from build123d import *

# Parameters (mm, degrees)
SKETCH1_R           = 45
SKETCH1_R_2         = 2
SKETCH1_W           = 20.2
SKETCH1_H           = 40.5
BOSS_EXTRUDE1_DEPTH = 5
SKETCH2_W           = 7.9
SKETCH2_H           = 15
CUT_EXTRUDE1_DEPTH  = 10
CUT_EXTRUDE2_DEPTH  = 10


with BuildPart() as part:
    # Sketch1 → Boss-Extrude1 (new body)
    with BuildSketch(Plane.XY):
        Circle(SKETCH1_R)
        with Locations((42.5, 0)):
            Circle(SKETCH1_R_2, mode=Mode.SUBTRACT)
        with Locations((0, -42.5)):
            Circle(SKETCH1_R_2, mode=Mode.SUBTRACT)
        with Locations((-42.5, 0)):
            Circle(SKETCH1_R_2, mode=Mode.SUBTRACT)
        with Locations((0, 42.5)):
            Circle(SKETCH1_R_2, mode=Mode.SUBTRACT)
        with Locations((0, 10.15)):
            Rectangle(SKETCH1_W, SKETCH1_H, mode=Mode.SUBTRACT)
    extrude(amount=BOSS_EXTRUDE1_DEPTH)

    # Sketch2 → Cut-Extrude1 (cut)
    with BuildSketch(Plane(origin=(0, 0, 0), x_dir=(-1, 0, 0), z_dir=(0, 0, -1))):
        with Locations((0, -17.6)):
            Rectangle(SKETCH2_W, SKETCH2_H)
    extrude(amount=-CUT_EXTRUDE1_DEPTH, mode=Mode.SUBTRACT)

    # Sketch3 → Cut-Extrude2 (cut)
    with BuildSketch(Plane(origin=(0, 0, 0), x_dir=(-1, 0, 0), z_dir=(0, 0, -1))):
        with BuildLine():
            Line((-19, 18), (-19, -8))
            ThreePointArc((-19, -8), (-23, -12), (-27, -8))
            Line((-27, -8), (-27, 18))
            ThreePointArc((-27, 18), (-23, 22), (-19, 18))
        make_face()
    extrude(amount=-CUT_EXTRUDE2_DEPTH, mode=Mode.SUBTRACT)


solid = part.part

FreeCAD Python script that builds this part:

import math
import FreeCAD as App
import Part
import Sketcher

V = App.Vector


def add_polygon(sketch, points):
    """Adds a closed chain of lines whose ends are joined by coincident constraints."""
    first, n = sketch.GeometryCount, len(points)
    for a, b in zip(points, points[1:] + points[:1]):
        sketch.addGeometry(Part.LineSegment(App.Vector(*a, 0), App.Vector(*b, 0)), False)
    for i in range(n):
        sketch.addConstraint(Sketcher.Constraint("Coincident", first + i, 2, first + (i + 1) % n, 1))

doc = App.newDocument("Part")
params = doc.addObject("Spreadsheet::Sheet", "Params")
for row, (alias, value) in enumerate([
    ("sketch1_diameter", "90 mm"),
    ("sketch1_diameter2", "4 mm"),
    ("sketch1_width", "20.2 mm"),
    ("sketch1_height", "40.5 mm"),
    ("pad1_length", "5 mm"),
    ("sketch2_height", "15 mm"),
    ("sketch2_width", "7.9 mm"),
    ("pocket1_length", "10 mm"),
    ("sketch3_radius", "4 mm"),
    ("sketch3_height", "26 mm"),
    ("pocket2_length", "10 mm"),
], start=1):
    params.set(f"A{row}", alias)
    params.set(f"B{row}", "=" + value)
    params.setAlias(f"B{row}", alias)

body = doc.addObject("PartDesign::Body", "Body")

# Sketch on XY plane
sketch1 = body.newObject("Sketcher::SketchObject", "Sketch")
sketch1.AttachmentSupport = (doc.getObject("XY_Plane"), [""])
sketch1.MapMode = "FlatFace"
sketch1.addGeometry(Part.Circle(V(0, 0, 0), V(0, 0, 1), 45), False)  # 0
sketch1.addGeometry(Part.Circle(V(0, -42.5, 0), V(0, 0, 1), 2), False)  # 1
sketch1.addGeometry(Part.Circle(V(-42.5, 0, 0), V(0, 0, 1), 2), False)  # 2
add_polygon(sketch1, [(10.1, -10.1), (-10.1, -10.1), (-10.1, 30.4), (10.1, 30.4)])  # lines 3-6
sketch1.addGeometry(Part.Circle(V(42.5, 0, 0), V(0, 0, 1), 2), False)  # 7
sketch1.addGeometry(Part.Circle(V(0, 42.5, 0), V(0, 0, 1), 2), False)  # 8
sketch1.addConstraint([
    Sketcher.Constraint("Horizontal", 3),
    Sketcher.Constraint("Vertical", 4),
    Sketcher.Constraint("Horizontal", 5),
    Sketcher.Constraint("Vertical", 6),
    Sketcher.Constraint("Coincident", 0, 3, -1, 1),
    Sketcher.Constraint("Equal", 1, 2),
    Sketcher.Constraint("Equal", 2, 7),
    Sketcher.Constraint("Equal", 7, 8),
    Sketcher.Constraint("Symmetric", 2, 3, 7, 3, -1, 1),
    Sketcher.Constraint("Symmetric", 1, 3, 8, 3, -1, 1),
    Sketcher.Constraint("PointOnObject", 1, 3, -2),
    Sketcher.Constraint("PointOnObject", 2, 3, -1),
    Sketcher.Constraint("Diameter", 0, 90.0),
    Sketcher.Constraint("Diameter", 1, 4.0),
    Sketcher.Constraint("DistanceX", 3, 2, 3, 1, 20.2),
    Sketcher.Constraint("DistanceY", 4, 1, 4, 2, 40.5),
    Sketcher.Constraint("DistanceX", 2, 3, 7, 3, 85.0),
    Sketcher.Constraint("DistanceY", 1, 3, 8, 3, 85.0),
    Sketcher.Constraint("DistanceX", 3, 2, -1, 1, 10.1),
    Sketcher.Constraint("DistanceY", 3, 2, -1, 1, 10.1),
])
sketch1.setExpression("Constraints[16]", "Params.sketch1_diameter")
sketch1.setExpression("Constraints[17]", "Params.sketch1_diameter2")
sketch1.setExpression("Constraints[18]", "Params.sketch1_width")
sketch1.setExpression("Constraints[19]", "Params.sketch1_height")
pad1 = body.newObject("PartDesign::Pad", "Pad")
pad1.Profile = sketch1
pad1.setExpression("Length", "Params.pad1_length")

# Sketch on XY plane
sketch2 = body.newObject("Sketcher::SketchObject", "Sketch001")
sketch2.AttachmentSupport = (doc.getObject("XY_Plane"), [""])
sketch2.MapMode = "FlatFace"
add_polygon(sketch2, [(4, -10), (4, -25), (-4, -25), (-4, -10)])  # lines 0-3
sketch2.addConstraint([
    Sketcher.Constraint("Vertical", 0),
    Sketcher.Constraint("Horizontal", 1),
    Sketcher.Constraint("Vertical", 2),
    Sketcher.Constraint("Horizontal", 3),
    Sketcher.Constraint("DistanceY", 0, 2, 0, 1, 15.0),
    Sketcher.Constraint("DistanceX", 1, 2, 1, 1, 7.9),
    Sketcher.Constraint("DistanceY", 0, 2, -1, 1, 25.1),
    Sketcher.Constraint("DistanceX", -1, 1, 0, 2, 3.95),
])
sketch2.setExpression("Constraints[8]", "Params.sketch2_height")
sketch2.setExpression("Constraints[9]", "Params.sketch2_width")
pocket1 = body.newObject("PartDesign::Pocket", "Pocket")
pocket1.Profile = sketch2
pocket1.setExpression("Length", "Params.pocket1_length")
pocket1.Reversed = True

# Sketch on XY plane
sketch3 = body.newObject("Sketcher::SketchObject", "Sketch002")
sketch3.AttachmentSupport = (doc.getObject("XY_Plane"), [""])
sketch3.MapMode = "FlatFace"
sketch3.addGeometry([
    Part.LineSegment(V(19, -8, 0), V(19, 18, 0)),
    Part.ArcOfCircle(Part.Circle(V(23, 18, 0), V(0, 0, 1), 4), math.radians(0), math.radians(180)),
    Part.LineSegment(V(27, 18, 0), V(27, -8, 0)),
    Part.ArcOfCircle(Part.Circle(V(23, -8, 0), V(0, 0, 1), 4), math.radians(180), math.radians(360)),
], False)
sketch3.addConstraint([
    Sketcher.Constraint("Tangent", 0, 2, 1, 2),
    Sketcher.Constraint("Tangent", 1, 1, 2, 1),
    Sketcher.Constraint("Tangent", 2, 2, 3, 2),
    Sketcher.Constraint("Tangent", 3, 1, 0, 1),
    Sketcher.Constraint("Vertical", 0),
    Sketcher.Constraint("Vertical", 2),
    Sketcher.Constraint("Radius", 1, 4.0),
    Sketcher.Constraint("DistanceY", 0, 1, 0, 2, 26.0),
    Sketcher.Constraint("DistanceX", -1, 1, 1, 3, 23.0),
    Sketcher.Constraint("DistanceY", -1, 1, 1, 3, 18.0),
])
sketch3.setExpression("Constraints[6]", "Params.sketch3_radius")
sketch3.setExpression("Constraints[7]", "Params.sketch3_height")
pocket2 = body.newObject("PartDesign::Pocket", "Pocket001")
pocket2.Profile = sketch3
pocket2.setExpression("Length", "Params.pocket2_length")
pocket2.Reversed = True

doc.recompute()
